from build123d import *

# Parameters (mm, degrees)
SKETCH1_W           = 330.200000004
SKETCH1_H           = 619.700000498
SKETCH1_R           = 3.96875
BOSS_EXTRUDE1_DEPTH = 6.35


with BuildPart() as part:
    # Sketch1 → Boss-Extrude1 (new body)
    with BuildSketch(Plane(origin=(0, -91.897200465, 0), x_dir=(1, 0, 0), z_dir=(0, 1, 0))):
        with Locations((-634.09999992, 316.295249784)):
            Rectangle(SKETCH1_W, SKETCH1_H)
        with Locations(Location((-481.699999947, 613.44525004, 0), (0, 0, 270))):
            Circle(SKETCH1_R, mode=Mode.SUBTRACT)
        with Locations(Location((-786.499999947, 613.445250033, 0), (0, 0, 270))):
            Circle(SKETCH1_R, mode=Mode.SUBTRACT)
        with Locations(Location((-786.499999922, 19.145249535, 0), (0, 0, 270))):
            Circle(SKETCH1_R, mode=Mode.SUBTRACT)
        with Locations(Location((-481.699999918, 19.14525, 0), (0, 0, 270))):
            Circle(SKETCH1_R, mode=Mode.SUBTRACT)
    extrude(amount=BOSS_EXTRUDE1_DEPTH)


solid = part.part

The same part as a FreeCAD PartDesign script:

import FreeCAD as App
import Part
import Sketcher
from FreeCAD import Vector
Q = App.Units.Quantity


def add_polygon(sketch, points):
    """Adds a closed chain of lines whose ends are joined by coincident constraints."""
    first, n = sketch.GeometryCount, len(points)
    for a, b in zip(points, points[1:] + points[:1]):
        sketch.addGeometry(Part.LineSegment(App.Vector(*a, 0), App.Vector(*b, 0)), False)
    for i in range(n):
        sketch.addConstraint(Sketcher.Constraint("Coincident", first + i, 2, first + (i + 1) % n, 1))

doc = App.newDocument("Part")
body = doc.addObject("PartDesign::Body", "Body")

# Sketch on XZ plane
sketch1 = doc.addObject("Sketcher::SketchObject", "Sketch")
body.addObject(sketch1)
sketch1.AttachmentSupport = (doc.XZ_Plane, [""])
sketch1.MapMode = "FlatFace"
sketch1.AttachmentOffset = App.Placement(Vector(0, 0, 3.618 * 25.4), App.Rotation())
add_polygon(sketch1, [(-799.2, -626.1), (-799.2, -6.4), (-469, -6.4), (-469, -626.1)])  # lines 0-3
sketch1.addGeometry(Part.Circle(Vector(-786.5, -19.1, 0), Vector(0, 0, 1), 4), False)  # 4
sketch1.addGeometry(Part.Circle(Vector(-481.7, -19.1, 0), Vector(0, 0, 1), 4), False)  # 5
sketch1.addGeometry(Part.Circle(Vector(-786.5, -613.4, 0), Vector(0, 0, 1), 4), False)  # 6
sketch1.addGeometry(Part.Circle(Vector(-481.7, -613.4, 0), Vector(0, 0, 1), 4), False)  # 7
sketch1.addConstraint([
    Sketcher.Constraint("Vertical", 0),
    Sketcher.Constraint("Horizontal", 1),
    Sketcher.Constraint("Vertical", 2),
    Sketcher.Constraint("Horizontal", 3),
    Sketcher.Constraint("Equal", 4, 5),
    Sketcher.Constraint("Equal", 5, 6),
    Sketcher.Constraint("Equal", 6, 7),
    Sketcher.Constraint("Horizontal", 4, 3, 5, 3),
    Sketcher.Constraint("Horizontal", 6, 3, 7, 3),
    Sketcher.Constraint("Vertical", 4, 3, 6, 3),
    Sketcher.Constraint("Vertical", 5, 3, 7, 3),
    Sketcher.Constraint("DistanceX", 1, 1, 1, 2, Q("13 in")),
    Sketcher.Constraint("Diameter", 4, Q("0.3125 in")),
    Sketcher.Constraint("DistanceX", 4, 3, 5, 3, Q("12 in")),
    Sketcher.Constraint("DistanceX", 0, 2, 4, 3, Q("0.5 in")),
    Sketcher.Constraint("DistanceY", 4, 3, 0, 2, Q("0.5 in")),
    Sketcher.Constraint("DistanceY", 2, 2, 7, 3, Q("0.5 in")),
    Sketcher.Constraint("DistanceY", 0, 1, 0, 2, Q("619.7 mm")),
    Sketcher.Constraint("DistanceX", 4, 3, -1, 1, Q("786.5 mm")),
    Sketcher.Constraint("DistanceY", 4, 3, -1, 1, Q("19.14525 mm")),
])
pad1 = doc.addObject("PartDesign::Pad", "Pad")
body.addObject(pad1)
pad1.Profile = sketch1
pad1.Length = Q("0.25 in")
pad1.Reversed = True

doc.recompute()
